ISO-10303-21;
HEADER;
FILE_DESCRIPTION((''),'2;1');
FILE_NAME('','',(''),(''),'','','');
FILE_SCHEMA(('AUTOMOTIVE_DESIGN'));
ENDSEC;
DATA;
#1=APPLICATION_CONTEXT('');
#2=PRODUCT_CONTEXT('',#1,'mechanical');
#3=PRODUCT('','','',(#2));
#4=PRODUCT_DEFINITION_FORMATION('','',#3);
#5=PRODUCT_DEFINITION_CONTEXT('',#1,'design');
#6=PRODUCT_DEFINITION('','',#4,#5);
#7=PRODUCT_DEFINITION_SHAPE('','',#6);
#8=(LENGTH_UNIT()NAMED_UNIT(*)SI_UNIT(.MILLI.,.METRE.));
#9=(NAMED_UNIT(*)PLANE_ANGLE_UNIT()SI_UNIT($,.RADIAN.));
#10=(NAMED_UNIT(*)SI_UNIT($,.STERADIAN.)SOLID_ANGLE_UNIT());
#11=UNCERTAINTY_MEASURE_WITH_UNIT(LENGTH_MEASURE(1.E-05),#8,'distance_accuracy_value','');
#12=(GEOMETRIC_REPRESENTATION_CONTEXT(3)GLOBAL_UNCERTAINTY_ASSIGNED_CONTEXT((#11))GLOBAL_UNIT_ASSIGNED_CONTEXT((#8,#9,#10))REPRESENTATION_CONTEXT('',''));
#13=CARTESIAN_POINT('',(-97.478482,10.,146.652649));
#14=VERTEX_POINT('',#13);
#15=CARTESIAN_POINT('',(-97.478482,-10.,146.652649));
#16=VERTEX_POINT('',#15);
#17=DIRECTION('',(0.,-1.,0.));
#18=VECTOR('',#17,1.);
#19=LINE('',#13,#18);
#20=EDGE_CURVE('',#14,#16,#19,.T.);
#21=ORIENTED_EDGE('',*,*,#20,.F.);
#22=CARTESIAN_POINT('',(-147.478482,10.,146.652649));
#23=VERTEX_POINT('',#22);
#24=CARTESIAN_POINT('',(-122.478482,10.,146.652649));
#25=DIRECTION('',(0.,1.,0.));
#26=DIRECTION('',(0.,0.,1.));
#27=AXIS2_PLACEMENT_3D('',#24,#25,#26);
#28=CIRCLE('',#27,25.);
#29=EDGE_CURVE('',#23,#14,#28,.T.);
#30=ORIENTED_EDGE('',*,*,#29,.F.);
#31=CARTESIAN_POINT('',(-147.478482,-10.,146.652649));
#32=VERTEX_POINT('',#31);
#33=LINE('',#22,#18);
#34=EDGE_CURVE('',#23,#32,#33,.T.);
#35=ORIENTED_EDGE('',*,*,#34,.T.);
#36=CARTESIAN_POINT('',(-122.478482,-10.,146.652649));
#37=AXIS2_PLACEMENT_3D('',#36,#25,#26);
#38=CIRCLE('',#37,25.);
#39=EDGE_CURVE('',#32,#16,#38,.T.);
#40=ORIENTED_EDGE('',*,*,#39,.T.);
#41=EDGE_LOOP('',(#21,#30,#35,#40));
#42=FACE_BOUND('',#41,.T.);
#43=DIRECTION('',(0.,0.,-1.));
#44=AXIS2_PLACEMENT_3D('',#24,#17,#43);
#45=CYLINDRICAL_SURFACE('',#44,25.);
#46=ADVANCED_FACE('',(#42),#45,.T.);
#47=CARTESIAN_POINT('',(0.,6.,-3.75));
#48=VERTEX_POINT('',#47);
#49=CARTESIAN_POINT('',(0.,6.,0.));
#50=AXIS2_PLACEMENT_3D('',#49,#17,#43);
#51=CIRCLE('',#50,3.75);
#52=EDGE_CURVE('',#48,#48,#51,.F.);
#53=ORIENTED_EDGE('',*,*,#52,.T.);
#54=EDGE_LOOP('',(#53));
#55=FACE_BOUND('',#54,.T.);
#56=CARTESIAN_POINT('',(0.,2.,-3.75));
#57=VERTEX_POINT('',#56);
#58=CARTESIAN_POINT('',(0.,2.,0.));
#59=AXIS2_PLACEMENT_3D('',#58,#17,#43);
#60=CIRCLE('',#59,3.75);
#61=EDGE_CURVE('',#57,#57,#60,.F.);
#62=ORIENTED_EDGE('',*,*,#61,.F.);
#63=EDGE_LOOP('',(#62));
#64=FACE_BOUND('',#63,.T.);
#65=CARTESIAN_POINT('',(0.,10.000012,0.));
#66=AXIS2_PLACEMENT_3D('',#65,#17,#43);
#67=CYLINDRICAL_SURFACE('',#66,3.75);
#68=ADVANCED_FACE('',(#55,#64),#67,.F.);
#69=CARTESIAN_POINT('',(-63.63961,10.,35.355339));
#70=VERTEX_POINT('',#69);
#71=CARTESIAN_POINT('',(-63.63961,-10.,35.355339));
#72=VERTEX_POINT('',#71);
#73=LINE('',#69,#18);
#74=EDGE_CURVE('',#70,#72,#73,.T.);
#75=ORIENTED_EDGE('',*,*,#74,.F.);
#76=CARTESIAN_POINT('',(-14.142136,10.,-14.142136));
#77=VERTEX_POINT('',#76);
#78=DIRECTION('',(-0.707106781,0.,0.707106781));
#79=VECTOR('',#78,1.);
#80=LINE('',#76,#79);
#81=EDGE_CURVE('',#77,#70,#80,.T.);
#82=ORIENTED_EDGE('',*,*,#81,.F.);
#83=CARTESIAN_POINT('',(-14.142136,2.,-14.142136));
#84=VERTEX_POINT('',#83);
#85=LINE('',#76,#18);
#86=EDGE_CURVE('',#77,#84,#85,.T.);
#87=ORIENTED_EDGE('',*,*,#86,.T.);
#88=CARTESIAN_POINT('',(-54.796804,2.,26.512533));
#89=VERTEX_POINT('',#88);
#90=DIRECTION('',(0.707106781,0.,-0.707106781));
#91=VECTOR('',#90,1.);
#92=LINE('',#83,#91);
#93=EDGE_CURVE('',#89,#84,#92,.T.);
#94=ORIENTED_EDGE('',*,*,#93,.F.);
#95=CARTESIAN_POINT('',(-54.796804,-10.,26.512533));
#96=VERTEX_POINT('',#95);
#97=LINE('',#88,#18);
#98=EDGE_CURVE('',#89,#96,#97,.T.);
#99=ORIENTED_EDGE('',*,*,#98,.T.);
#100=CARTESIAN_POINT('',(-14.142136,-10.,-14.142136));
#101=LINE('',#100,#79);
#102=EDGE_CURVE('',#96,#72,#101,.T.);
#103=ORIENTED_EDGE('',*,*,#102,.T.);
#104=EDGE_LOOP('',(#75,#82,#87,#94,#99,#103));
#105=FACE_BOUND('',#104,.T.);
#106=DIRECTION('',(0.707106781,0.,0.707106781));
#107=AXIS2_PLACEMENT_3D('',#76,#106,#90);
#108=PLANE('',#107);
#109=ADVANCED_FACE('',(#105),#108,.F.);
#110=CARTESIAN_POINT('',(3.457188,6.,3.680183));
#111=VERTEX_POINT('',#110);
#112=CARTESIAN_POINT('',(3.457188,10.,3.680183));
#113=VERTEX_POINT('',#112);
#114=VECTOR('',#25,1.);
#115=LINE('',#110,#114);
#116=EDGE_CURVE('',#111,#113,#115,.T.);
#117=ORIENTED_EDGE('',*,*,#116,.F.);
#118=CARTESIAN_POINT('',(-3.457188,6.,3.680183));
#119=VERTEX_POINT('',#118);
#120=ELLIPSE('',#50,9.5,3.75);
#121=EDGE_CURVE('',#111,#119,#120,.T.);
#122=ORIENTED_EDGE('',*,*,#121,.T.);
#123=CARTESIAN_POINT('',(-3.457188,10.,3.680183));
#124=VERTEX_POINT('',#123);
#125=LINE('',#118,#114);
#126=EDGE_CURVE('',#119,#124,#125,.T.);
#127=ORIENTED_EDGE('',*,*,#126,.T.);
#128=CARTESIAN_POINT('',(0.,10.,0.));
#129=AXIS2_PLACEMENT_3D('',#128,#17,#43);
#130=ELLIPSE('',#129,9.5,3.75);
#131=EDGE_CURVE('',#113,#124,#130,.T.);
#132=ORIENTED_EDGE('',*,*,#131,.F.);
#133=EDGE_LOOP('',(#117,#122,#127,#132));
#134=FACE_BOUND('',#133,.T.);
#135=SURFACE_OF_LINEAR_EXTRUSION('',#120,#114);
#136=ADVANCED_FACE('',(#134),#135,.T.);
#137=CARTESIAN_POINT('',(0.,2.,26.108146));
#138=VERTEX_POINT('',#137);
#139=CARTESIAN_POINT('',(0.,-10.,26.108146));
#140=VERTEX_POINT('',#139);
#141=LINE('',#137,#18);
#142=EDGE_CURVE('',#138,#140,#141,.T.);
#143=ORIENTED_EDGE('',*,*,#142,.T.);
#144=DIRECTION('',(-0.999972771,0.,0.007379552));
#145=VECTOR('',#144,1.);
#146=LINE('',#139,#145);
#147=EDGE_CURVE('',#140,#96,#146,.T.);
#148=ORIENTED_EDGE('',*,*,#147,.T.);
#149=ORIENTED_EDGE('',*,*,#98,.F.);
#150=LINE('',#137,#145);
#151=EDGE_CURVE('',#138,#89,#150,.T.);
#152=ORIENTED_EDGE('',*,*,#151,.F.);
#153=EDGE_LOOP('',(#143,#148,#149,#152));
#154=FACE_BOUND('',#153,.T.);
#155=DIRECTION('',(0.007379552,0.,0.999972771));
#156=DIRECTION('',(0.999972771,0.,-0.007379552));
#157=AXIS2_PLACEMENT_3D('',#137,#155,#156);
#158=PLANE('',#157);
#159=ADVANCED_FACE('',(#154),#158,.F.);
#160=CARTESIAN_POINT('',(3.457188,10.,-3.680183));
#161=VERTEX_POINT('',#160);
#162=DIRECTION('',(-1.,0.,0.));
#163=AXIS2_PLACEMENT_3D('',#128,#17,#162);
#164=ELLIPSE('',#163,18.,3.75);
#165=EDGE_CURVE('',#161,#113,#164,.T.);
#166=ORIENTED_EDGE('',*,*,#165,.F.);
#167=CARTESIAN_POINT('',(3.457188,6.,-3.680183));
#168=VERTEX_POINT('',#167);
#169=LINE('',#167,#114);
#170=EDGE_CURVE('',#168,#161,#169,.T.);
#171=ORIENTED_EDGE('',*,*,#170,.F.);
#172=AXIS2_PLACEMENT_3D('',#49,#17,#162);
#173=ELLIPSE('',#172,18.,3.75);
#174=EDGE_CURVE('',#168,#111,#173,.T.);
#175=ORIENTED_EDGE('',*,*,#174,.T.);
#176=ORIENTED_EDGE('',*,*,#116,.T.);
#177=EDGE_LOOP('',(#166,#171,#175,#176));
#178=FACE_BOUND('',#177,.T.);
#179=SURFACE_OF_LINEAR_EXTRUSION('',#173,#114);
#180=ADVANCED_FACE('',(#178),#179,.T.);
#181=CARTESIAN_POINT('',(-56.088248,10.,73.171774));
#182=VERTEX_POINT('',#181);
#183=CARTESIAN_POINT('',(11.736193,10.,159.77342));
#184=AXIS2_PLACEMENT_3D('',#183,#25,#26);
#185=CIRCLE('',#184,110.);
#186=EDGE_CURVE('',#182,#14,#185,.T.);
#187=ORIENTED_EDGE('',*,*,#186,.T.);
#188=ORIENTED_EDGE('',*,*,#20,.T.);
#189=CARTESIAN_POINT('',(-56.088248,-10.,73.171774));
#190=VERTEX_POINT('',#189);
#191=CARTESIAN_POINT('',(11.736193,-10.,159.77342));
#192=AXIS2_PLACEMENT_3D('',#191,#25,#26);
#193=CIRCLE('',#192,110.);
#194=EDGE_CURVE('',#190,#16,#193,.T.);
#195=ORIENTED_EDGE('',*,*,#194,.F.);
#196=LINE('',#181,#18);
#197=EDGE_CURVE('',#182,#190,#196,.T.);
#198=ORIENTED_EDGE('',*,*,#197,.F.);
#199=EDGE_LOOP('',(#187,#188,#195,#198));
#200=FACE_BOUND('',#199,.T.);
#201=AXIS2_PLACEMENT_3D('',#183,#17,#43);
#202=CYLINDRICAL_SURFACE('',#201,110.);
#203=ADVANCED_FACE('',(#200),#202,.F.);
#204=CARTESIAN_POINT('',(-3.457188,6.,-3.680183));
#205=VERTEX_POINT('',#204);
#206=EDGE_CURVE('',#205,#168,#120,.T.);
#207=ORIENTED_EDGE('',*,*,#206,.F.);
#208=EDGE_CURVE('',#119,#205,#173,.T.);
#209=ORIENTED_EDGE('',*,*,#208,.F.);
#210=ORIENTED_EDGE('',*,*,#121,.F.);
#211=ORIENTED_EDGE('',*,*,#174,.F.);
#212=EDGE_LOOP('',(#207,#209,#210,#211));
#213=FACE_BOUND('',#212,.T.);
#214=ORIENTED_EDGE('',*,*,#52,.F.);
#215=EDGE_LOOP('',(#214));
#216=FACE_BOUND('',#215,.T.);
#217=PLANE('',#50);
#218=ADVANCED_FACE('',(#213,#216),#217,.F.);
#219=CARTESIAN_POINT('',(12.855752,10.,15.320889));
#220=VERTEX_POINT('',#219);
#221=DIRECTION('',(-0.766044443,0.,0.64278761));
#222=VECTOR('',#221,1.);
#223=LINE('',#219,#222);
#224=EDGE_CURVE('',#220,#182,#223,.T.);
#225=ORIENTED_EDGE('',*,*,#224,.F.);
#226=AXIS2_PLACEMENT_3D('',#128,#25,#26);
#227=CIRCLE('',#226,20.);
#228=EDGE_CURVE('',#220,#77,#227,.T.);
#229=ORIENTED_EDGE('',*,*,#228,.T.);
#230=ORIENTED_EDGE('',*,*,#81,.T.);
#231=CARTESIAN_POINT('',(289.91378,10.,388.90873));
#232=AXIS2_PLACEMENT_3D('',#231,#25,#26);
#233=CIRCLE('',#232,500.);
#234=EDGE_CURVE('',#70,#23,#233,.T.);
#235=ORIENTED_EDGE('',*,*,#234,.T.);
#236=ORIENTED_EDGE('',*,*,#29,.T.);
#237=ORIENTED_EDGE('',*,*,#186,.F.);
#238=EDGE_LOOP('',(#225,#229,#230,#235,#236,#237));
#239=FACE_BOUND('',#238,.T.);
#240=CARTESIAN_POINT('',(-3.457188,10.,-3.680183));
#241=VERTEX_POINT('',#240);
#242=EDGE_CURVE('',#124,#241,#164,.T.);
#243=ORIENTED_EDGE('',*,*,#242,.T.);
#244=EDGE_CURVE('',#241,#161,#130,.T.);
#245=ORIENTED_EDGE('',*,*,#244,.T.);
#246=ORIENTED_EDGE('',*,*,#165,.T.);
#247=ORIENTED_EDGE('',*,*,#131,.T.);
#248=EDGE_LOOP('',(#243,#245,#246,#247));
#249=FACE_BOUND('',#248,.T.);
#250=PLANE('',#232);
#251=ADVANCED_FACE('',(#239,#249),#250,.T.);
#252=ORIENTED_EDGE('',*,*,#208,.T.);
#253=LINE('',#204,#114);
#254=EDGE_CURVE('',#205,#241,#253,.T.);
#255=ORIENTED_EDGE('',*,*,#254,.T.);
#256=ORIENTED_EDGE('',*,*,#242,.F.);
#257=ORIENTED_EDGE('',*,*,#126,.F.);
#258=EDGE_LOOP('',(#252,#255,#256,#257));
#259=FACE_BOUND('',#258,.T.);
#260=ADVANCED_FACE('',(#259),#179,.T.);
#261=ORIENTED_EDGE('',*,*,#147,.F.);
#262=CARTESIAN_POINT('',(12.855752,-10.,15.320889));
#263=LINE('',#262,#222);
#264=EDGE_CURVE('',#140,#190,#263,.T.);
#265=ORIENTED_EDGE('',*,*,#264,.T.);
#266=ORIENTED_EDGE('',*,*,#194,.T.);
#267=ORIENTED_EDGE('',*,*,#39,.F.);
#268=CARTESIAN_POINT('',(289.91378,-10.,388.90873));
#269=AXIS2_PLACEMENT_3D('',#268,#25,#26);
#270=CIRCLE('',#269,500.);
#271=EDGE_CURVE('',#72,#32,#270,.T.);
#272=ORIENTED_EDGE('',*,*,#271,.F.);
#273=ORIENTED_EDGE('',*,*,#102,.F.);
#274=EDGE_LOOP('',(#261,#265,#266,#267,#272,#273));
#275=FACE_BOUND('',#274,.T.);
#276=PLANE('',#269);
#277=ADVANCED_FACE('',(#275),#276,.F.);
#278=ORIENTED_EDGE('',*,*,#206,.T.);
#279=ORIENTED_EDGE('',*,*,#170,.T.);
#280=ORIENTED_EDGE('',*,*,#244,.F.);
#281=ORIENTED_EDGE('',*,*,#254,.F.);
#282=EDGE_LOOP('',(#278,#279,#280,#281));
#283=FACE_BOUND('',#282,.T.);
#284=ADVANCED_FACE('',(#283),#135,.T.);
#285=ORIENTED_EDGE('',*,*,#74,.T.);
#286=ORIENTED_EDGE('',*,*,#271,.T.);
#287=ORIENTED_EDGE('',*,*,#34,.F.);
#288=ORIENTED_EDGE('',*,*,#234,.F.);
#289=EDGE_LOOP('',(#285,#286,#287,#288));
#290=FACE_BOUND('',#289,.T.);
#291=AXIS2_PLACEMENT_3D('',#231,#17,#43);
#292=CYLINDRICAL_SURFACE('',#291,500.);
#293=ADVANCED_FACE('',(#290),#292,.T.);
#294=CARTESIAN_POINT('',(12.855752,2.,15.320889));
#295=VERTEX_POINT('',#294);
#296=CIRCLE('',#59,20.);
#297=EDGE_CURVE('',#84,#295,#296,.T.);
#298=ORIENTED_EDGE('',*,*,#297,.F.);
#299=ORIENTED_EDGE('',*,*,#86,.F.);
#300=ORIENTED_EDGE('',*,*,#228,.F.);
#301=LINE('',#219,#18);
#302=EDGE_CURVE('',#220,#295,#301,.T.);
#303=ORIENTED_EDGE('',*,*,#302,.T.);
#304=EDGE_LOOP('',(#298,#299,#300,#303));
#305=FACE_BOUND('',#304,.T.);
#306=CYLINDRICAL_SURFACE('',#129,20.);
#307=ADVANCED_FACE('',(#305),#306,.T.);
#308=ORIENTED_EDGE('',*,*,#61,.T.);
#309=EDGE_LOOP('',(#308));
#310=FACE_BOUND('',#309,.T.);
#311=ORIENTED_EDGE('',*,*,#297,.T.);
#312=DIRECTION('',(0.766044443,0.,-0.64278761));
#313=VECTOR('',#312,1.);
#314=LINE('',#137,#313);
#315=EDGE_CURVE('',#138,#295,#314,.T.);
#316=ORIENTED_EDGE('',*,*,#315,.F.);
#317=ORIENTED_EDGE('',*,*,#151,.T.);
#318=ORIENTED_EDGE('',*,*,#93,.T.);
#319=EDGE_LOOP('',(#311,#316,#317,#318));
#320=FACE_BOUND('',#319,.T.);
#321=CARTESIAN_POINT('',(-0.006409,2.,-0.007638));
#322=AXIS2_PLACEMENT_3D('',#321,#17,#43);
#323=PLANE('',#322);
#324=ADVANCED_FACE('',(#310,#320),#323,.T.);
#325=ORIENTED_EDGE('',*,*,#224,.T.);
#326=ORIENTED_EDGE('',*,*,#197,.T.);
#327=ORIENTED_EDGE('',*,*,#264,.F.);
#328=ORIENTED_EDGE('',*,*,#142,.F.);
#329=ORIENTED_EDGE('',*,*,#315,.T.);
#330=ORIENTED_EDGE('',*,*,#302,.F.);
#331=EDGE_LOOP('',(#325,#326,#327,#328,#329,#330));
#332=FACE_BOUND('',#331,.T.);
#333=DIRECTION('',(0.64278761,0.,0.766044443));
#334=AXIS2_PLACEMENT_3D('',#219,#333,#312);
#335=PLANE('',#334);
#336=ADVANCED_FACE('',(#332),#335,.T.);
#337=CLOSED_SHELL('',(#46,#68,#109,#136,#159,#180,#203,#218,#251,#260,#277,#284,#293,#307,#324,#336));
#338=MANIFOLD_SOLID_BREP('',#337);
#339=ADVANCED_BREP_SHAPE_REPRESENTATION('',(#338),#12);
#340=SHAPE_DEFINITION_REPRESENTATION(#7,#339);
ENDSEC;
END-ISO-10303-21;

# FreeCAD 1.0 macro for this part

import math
import FreeCAD as App
import Part
import Sketcher
from FreeCAD import Vector
Q = App.Units.Quantity

doc = App.newDocument("Part")
body = doc.addObject("PartDesign::Body", "Body")

sketch1 = body.newObject("Sketcher::SketchObject", "Sketch")
sketch1.AttachmentSupport = (doc.getObject("XZ_Plane"), [""])
sketch1.MapMode = "FlatFace"
sketch1.addGeometry(Part.LineSegment(Vector(-14, -14, 0), Vector(-64, 35, 0)), False)
sketch1.addGeometry(Part.ArcOfCircle(Part.Circle(Vector(290, 389, 0), Vector(0, 0, 1), 500), math.radians(-151.02), math.radians(-135)), False)
sketch1.addGeometry(Part.ArcOfCircle(Part.Circle(Vector(-122, 147, 0), Vector(0, 0, 1), 25), math.radians(0), math.radians(180)), False)
sketch1.addGeometry(Part.ArcOfCircle(Part.Circle(Vector(12, 160, 0), Vector(0, 0, 1), 110), math.radians(-173), math.radians(-128)), False)
sketch1.addGeometry(Part.LineSegment(Vector(-56, 73, 0), Vector(13, 15, 0)), False)
sketch1.addGeometry(Part.ArcOfCircle(Part.Circle(Vector(0, 0, 0), Vector(0, 0, 1), 20), math.radians(-135), math.radians(50)), False)
sketch1.addConstraint(Sketcher.Constraint("Tangent", 0, 2, 1, 2))
sketch1.addConstraint(Sketcher.Constraint("Coincident", 1, 1, 2, 2))
sketch1.addConstraint(Sketcher.Constraint("Coincident", 2, 1, 3, 1))
sketch1.addConstraint(Sketcher.Constraint("Coincident", 3, 2, 4, 1))
sketch1.addConstraint(Sketcher.Constraint("Tangent", 4, 2, 5, 2))
sketch1.addConstraint(Sketcher.Constraint("Tangent", 5, 1, 0, 1))
sketch1.addConstraint(Sketcher.Constraint("Coincident", 5, 3, -1, 1))
sketch1.addConstraint(Sketcher.Constraint("Horizontal", 2, 3, 1, 1))
sketch1.addConstraint(Sketcher.Constraint("Horizontal", 1, 1, 2, 1))
sketch1.addConstraint(Sketcher.Constraint("Radius", 1, Q("500 mm")))
sketch1.addConstraint(Sketcher.Constraint("Radius", 2, Q("25 mm")))
sketch1.addConstraint(Sketcher.Constraint("Radius", 3, Q("110 mm")))
sketch1.addConstraint(Sketcher.Constraint("Radius", 5, Q("20 mm")))
sketch1.addConstraint(Sketcher.Constraint("Angle", 0, Q("135 deg")))
sketch1.addConstraint(Sketcher.Constraint("Angle", 4, Q("-40 deg")))
sketch1.addConstraint(Sketcher.Constraint("Distance", 0, Q("70 mm")))
sketch1.addConstraint(Sketcher.Constraint("Distance", 4, Q("90 mm")))
sketch1.addConstraint(Sketcher.Constraint("DistanceY", -1, 1, 2, 3, Q("146.652649 mm")))
pad1 = body.newObject("PartDesign::Pad", "Pad")
pad1.Profile = sketch1
pad1.Length = 20
pad1.Midplane = True

sketch2 = body.newObject("Sketcher::SketchObject", "Sketch001")
sketch2.AttachmentSupport = (doc.getObject("XZ_Plane"), [""])
sketch2.MapMode = "FlatFace"
sketch2.AttachmentOffset = App.Placement(Vector(0, 0, -10), App.Rotation())
sketch2.addGeometry(Part.Circle(Vector(0, 0, 0), Vector(0, 0, 1), 3.8), False)
sketch2.addConstraint(Sketcher.Constraint("Coincident", 0, 3, -1, 1))
sketch2.addConstraint(Sketcher.Constraint("Diameter", 0, Q("7.5 mm")))
pocket1 = body.newObject("PartDesign::Pocket", "Pocket")
pocket1.Profile = sketch2
pocket1.Type = "ThroughAll"
pocket1.Midplane = True

sketch3 = body.newObject("Sketcher::SketchObject", "Sketch002")
sketch3.AttachmentSupport = (doc.getObject("XZ_Plane"), [""])
sketch3.MapMode = "FlatFace"
sketch3.AttachmentOffset = App.Placement(Vector(0, 0, -10), App.Rotation())
sketch3.addGeometry(Part.BSplineCurve([Vector(3.457188, -3.680183, 0), Vector(18, -3.08723, 0), Vector(18, 0, 0), Vector(18, 3.08723, 0), Vector(3.457188, 3.680183, 0)], [3, 2, 3], [1.764063263, 3.141592654, 4.519122044], False, 2, [1, 0.772031744, 1, 0.772031744, 1], False), False)
sketch3.addGeometry(Part.BSplineCurve([Vector(3.457188, 3.680183, 0), Vector(0, 24.52324, 0), Vector(-3.457188, 3.680183, 0)], [3, 3], [1.968592603, 4.314592705], False, 2, [1, 0.387387634, 1], False), False)
sketch3.addGeometry(Part.BSplineCurve([Vector(-3.457188, 3.680183, 0), Vector(-18, 3.08723, 0), Vector(-18, 0, 0), Vector(-18, -3.08723, 0), Vector(-3.457188, -3.680183, 0)], [3, 2, 3], [4.905655917, 6.283185307, 7.660714698], False, 2, [1, 0.772031744, 1, 0.772031744, 1], False), False)
sketch3.addGeometry(Part.BSplineCurve([Vector(-3.457188, -3.680183, 0), Vector(0, -24.52324, 0), Vector(3.457188, -3.680183, 0)], [3, 3], [5.110185256, 7.456185358], False, 2, [1, 0.387387634, 1], False), False)
sketch3.addConstraint(Sketcher.Constraint("Block", 0))
sketch3.addConstraint(Sketcher.Constraint("Block", 1))
sketch3.addConstraint(Sketcher.Constraint("Block", 2))
sketch3.addConstraint(Sketcher.Constraint("Block", 3))
pocket2 = body.newObject("PartDesign::Pocket", "Pocket001")
pocket2.Profile = sketch3
pocket2.Type = "TwoLengths"
pocket2.Length = 4
pocket2.Length2 = 4
pocket2.Reversed = True

sketch4 = body.newObject("Sketcher::SketchObject", "Sketch003")
sketch4.AttachmentSupport = (doc.getObject("XZ_Plane"), [""])
sketch4.MapMode = "FlatFace"
sketch4.AttachmentOffset = App.Placement(Vector(0, 0, 10), App.Rotation())
sketch4.addGeometry(Part.LineSegment(Vector(0, 26, 0), Vector(-55, 27, 0)), False)
sketch4.addGeometry(Part.LineSegment(Vector(-55, 27, 0), Vector(-15, -14, 0)), False)
sketch4.addGeometry(Part.ArcOfCircle(Part.Circle(Vector(0, 0, 0), Vector(0, 0, 1), 20), math.radians(-138), math.radians(50)), False)
sketch4.addGeometry(Part.LineSegment(Vector(13, 15, 0), Vector(0, 26, 0)), False)
sketch4.addConstraint(Sketcher.Constraint("Coincident", 0, 2, 1, 1))
sketch4.addConstraint(Sketcher.Constraint("Coincident", 1, 2, 2, 1))
sketch4.addConstraint(Sketcher.Constraint("Tangent", 2, 2, 3, 1))
sketch4.addConstraint(Sketcher.Constraint("Coincident", 3, 2, 0, 1))
sketch4.addConstraint(Sketcher.Constraint("PointOnObject", 3, 2, -2))
sketch4.addConstraint(Sketcher.Constraint("Angle", 1, Q("-45 deg")))
sketch4.addConstraint(Sketcher.Constraint("Angle", 3, Q("140 deg")))
sketch4.addConstraint(Sketcher.Constraint("Radius", 2, Q("20.009971 mm")))
sketch4.addConstraint(Sketcher.Constraint("Distance", 1, Q("56.60296 mm")))
sketch4.addConstraint(Sketcher.Constraint("DistanceX", 2, 3, -1, 1, Q("0.006409 mm")))
sketch4.addConstraint(Sketcher.Constraint("DistanceY", 2, 3, -1, 1, Q("0.007638 mm")))
sketch4.addConstraint(Sketcher.Constraint("DistanceY", 2, 3, 0, 2, Q("26.520171 mm")))
pocket3 = body.newObject("PartDesign::Pocket", "Pocket002")
pocket3.Profile = sketch4
pocket3.Length = 12

doc.recompute()
